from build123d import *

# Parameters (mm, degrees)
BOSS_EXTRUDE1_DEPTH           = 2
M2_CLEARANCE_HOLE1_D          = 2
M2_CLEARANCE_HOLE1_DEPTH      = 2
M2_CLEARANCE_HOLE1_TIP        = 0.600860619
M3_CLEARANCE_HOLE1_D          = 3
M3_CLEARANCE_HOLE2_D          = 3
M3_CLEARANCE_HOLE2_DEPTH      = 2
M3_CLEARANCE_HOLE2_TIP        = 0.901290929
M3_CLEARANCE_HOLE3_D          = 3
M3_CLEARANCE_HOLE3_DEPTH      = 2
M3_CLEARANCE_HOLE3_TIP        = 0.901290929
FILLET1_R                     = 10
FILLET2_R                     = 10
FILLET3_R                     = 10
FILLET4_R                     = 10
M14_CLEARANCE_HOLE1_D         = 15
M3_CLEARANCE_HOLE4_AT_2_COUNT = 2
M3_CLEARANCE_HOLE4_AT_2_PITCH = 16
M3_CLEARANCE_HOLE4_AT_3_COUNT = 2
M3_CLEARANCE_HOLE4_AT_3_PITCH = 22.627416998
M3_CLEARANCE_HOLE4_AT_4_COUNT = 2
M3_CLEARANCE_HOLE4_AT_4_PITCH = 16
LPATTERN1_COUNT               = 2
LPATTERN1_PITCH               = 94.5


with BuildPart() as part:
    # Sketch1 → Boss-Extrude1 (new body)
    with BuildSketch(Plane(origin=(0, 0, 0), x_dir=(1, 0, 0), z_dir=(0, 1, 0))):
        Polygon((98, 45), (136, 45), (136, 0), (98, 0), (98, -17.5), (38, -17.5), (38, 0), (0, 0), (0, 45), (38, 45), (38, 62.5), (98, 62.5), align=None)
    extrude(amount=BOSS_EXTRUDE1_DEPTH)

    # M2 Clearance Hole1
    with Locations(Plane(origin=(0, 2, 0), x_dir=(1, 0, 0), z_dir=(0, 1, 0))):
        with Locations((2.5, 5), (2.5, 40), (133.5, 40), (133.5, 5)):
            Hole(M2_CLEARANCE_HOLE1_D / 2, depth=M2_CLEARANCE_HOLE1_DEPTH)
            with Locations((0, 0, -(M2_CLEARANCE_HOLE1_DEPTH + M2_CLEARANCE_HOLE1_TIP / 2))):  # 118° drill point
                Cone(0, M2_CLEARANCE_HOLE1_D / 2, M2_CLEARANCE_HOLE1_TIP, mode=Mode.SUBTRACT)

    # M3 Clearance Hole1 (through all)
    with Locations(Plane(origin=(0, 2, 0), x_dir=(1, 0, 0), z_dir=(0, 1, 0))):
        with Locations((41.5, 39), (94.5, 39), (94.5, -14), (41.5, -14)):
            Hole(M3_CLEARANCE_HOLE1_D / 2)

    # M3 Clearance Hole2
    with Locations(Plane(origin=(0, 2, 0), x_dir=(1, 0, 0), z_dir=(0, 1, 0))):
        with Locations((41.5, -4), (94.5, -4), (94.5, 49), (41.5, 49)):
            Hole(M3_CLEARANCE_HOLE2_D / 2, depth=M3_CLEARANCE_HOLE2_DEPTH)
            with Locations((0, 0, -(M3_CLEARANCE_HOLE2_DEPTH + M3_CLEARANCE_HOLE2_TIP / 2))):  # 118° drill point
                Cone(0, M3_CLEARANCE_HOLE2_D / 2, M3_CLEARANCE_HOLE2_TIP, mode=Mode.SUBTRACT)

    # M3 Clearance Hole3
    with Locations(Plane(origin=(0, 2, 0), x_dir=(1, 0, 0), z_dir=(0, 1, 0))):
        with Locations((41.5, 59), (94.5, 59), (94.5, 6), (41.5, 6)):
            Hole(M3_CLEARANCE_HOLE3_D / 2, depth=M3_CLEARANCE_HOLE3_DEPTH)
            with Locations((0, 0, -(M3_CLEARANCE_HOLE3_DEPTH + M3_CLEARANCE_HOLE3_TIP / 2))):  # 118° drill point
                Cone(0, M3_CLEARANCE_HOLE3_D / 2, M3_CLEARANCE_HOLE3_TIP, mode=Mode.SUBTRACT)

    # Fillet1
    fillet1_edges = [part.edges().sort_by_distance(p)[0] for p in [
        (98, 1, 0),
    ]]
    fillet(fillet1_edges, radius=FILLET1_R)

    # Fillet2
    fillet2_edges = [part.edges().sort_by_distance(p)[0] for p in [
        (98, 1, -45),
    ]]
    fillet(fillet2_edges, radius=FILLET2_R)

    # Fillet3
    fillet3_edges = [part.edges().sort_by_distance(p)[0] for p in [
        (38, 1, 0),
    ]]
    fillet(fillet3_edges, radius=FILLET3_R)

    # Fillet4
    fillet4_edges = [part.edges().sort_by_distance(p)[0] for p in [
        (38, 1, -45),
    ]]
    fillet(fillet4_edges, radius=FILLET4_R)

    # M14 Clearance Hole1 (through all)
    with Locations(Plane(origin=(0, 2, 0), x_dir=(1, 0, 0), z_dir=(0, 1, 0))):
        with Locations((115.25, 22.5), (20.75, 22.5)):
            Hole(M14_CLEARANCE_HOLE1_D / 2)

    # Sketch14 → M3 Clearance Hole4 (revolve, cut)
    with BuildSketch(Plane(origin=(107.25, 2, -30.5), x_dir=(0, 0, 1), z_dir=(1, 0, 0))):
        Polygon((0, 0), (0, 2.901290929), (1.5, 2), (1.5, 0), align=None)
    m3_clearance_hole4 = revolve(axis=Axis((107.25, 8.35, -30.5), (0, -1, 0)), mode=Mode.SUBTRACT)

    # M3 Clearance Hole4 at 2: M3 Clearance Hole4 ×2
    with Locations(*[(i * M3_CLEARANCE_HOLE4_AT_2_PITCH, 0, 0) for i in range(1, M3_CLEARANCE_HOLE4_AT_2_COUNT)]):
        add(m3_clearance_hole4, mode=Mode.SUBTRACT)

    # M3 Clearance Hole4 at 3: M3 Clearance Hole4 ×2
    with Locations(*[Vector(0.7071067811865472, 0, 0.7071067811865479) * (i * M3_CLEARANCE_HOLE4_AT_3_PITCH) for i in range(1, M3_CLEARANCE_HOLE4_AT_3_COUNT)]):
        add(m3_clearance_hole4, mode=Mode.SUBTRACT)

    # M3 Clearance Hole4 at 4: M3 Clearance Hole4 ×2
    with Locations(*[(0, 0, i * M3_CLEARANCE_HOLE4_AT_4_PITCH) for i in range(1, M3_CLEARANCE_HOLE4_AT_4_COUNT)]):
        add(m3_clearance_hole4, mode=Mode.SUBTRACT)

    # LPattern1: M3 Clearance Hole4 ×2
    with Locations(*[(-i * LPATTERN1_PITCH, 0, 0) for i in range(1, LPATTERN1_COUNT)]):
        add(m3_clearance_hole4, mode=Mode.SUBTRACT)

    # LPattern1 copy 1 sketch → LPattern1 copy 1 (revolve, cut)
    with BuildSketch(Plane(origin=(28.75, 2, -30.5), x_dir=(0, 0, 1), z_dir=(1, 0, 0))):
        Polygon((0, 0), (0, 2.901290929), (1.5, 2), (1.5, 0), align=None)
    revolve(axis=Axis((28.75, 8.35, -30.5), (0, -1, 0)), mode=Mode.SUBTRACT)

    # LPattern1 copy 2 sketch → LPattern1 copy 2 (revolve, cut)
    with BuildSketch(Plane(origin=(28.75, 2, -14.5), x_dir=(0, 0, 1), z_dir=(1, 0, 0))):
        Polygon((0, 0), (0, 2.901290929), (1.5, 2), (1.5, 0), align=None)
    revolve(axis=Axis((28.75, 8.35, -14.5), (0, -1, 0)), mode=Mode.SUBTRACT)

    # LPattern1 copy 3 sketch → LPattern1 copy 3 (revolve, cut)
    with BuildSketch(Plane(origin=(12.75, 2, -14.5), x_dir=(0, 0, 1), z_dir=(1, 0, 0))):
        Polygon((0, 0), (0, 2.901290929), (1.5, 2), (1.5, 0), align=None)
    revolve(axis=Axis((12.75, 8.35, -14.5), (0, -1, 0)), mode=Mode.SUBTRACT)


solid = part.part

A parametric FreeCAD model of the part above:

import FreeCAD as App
import Part
import Sketcher
Q = App.Units.Quantity


def edges_at(feature, points):
    """Names of the edges that pass closest to the given points."""
    edges = feature.Shape.Edges
    near = lambda p: min(range(len(edges)), key=lambda i: edges[i].distToShape(Part.Vertex(*p))[0])
    return sorted({f"Edge{near(p) + 1}" for p in points})

doc = App.newDocument("Part")
body = doc.addObject("PartDesign::Body", "Body")

# Sketch on XZ plane
sketch1 = body.newObject("Sketcher::SketchObject", "Sketch")
sketch1.AttachmentSupport = (doc.getObject("XZ_Plane"), [""])
sketch1.MapMode = "FlatFace"
sketch1.addGeometry([
    Part.LineSegment(App.Vector(136, -45, 0), App.Vector(98, -45, 0)),  # 0
    Part.LineSegment(App.Vector(98, -45, 0), App.Vector(98, -62, 0)),  # 1
    Part.LineSegment(App.Vector(98, -62, 0), App.Vector(38, -62, 0)),  # 2
    Part.LineSegment(App.Vector(38, -62, 0), App.Vector(38, -45, 0)),  # 3
    Part.LineSegment(App.Vector(38, -45, 0), App.Vector(0, -45, 0)),  # 4
    Part.LineSegment(App.Vector(0, -45, 0), App.Vector(0, 0, 0)),  # 5
    Part.LineSegment(App.Vector(0, 0, 0), App.Vector(38, 0, 0)),  # 6
    Part.LineSegment(App.Vector(38, 0, 0), App.Vector(38, 18, 0)),  # 7
    Part.LineSegment(App.Vector(38, 18, 0), App.Vector(98, 18, 0)),  # 8
    Part.LineSegment(App.Vector(98, 18, 0), App.Vector(98, 0, 0)),  # 9
    Part.LineSegment(App.Vector(98, 0, 0), App.Vector(136, 0, 0)),  # 10
    Part.LineSegment(App.Vector(136, 0, 0), App.Vector(136, -45, 0)),  # 11
], False)
sketch1.addConstraint([
    Sketcher.Constraint("Coincident", 0, 2, 1, 1),
    Sketcher.Constraint("Coincident", 1, 2, 2, 1),
    Sketcher.Constraint("Coincident", 2, 2, 3, 1),
    Sketcher.Constraint("Coincident", 3, 2, 4, 1),
    Sketcher.Constraint("Coincident", 4, 2, 5, 1),
    Sketcher.Constraint("Coincident", 5, 2, 6, 1),
    Sketcher.Constraint("Coincident", 6, 2, 7, 1),
    Sketcher.Constraint("Coincident", 7, 2, 8, 1),
    Sketcher.Constraint("Coincident", 8, 2, 9, 1),
    Sketcher.Constraint("Coincident", 9, 2, 10, 1),
    Sketcher.Constraint("Coincident", 10, 2, 11, 1),
    Sketcher.Constraint("Coincident", 11, 2, 0, 1),
    Sketcher.Constraint("Horizontal", 0),
    Sketcher.Constraint("Vertical", 1),
    Sketcher.Constraint("Horizontal", 2),
    Sketcher.Constraint("Vertical", 3),
    Sketcher.Constraint("Horizontal", 4),
    Sketcher.Constraint("Vertical", 5),
    Sketcher.Constraint("Horizontal", 6),
    Sketcher.Constraint("Vertical", 7),
    Sketcher.Constraint("Horizontal", 8),
    Sketcher.Constraint("Vertical", 9),
    Sketcher.Constraint("Horizontal", 10),
    Sketcher.Constraint("Vertical", 11),
    Sketcher.Constraint("Coincident", 5, 2, -1, 1),
    Sketcher.Constraint("PointOnObject", 9, 2, -1),
    Sketcher.Constraint("Horizontal", 0, 2, 3, 2),
    Sketcher.Constraint("Vertical", 3, 2, 6, 2),
    Sketcher.Constraint("Vertical", 1, 2, 8, 2),
    Sketcher.Constraint("Equal", 0, 4),
    Sketcher.Constraint("Equal", 3, 7),
    Sketcher.Constraint("DistanceX", 0, 2, 0, 1, 38.0),
    Sketcher.Constraint("DistanceX", 2, 2, 2, 1, 60.0),
    Sketcher.Constraint("DistanceY", 5, 1, 5, 2, 45.0),
    Sketcher.Constraint("DistanceY", 1, 2, 1, 1, 17.5),
])
pad1 = body.newObject("PartDesign::Pad", "Pad")
pad1.Profile = sketch1
pad1.Length = 2
pad1.Reversed = True

# Sketch on XZ plane
sketch2 = body.newObject("Sketcher::SketchObject", "Sketch001")
sketch2.AttachmentSupport = (doc.getObject("XZ_Plane"), [""])
sketch2.MapMode = "FlatFace"
sketch2.AttachmentOffset = App.Placement(App.Vector(0, 0, -2), App.Rotation())
sketch2.addGeometry([
    Part.Circle(App.Vector(2.5, -5, 0), App.Vector(0, 0, 1), 1),
    Part.Circle(App.Vector(2.5, -40, 0), App.Vector(0, 0, 1), 1),
    Part.Circle(App.Vector(133.5, -40, 0), App.Vector(0, 0, 1), 1),
    Part.Circle(App.Vector(133.5, -5, 0), App.Vector(0, 0, 1), 1),
], False)
sketch2.addConstraint([
    Sketcher.Constraint("Equal", 0, 1),
    Sketcher.Constraint("Equal", 1, 2),
    Sketcher.Constraint("Equal", 2, 3),
    Sketcher.Constraint("Horizontal", 1, 3, 2, 3),
    Sketcher.Constraint("Horizontal", 0, 3, 3, 3),
    Sketcher.Constraint("Vertical", 0, 3, 1, 3),
    Sketcher.Constraint("Vertical", 2, 3, 3, 3),
    Sketcher.Constraint("Diameter", 0, 2.0),
    Sketcher.Constraint("DistanceY", 0, 3, -1, 1, 5.0),
    Sketcher.Constraint("DistanceY", 1, 3, -1, 1, 40.0),
    Sketcher.Constraint("DistanceX", 1, 3, 2, 3, 131.0),
    Sketcher.Constraint("DistanceX", -1, 1, 0, 3, 2.5),
])
doc.recompute()
hole = body.newObject("PartDesign::Hole", "Hole")
hole.Profile = sketch2
hole.ThreadType = "None"
hole.Diameter = 2
hole.DepthType = "Dimension"
hole.Depth = 2
hole.DrillPoint = "Angled"
hole.DrillPointAngle = 118
hole.Reversed = True

# Sketch on XZ plane
sketch3 = body.newObject("Sketcher::SketchObject", "Sketch002")
sketch3.AttachmentSupport = (doc.getObject("XZ_Plane"), [""])
sketch3.MapMode = "FlatFace"
sketch3.AttachmentOffset = App.Placement(App.Vector(0, 0, -2), App.Rotation())
sketch3.addGeometry([
    Part.Circle(App.Vector(41.5, -39, 0), App.Vector(0, 0, 1), 1.5),
    Part.Circle(App.Vector(94.5, -39, 0), App.Vector(0, 0, 1), 1.5),
    Part.Circle(App.Vector(94.5, 14, 0), App.Vector(0, 0, 1), 1.5),
    Part.Circle(App.Vector(41.5, 14, 0), App.Vector(0, 0, 1), 1.5),
], False)
sketch3.addConstraint([
    Sketcher.Constraint("Equal", 0, 1),
    Sketcher.Constraint("Equal", 1, 2),
    Sketcher.Constraint("Equal", 2, 3),
    Sketcher.Constraint("Horizontal", 0, 3, 1, 3),
    Sketcher.Constraint("Horizontal", 2, 3, 3, 3),
    Sketcher.Constraint("Vertical", 1, 3, 2, 3),
    Sketcher.Constraint("Vertical", 0, 3, 3, 3),
    Sketcher.Constraint("Diameter", 0, 3.0),
    Sketcher.Constraint("DistanceY", 0, 3, -1, 1, 39.0),
    Sketcher.Constraint("DistanceY", -1, 1, 2, 3, 14.0),
    Sketcher.Constraint("DistanceX", 0, 3, 1, 3, 53.0),
    Sketcher.Constraint("DistanceX", -1, 1, 0, 3, 41.5),
])
doc.recompute()
hole2 = body.newObject("PartDesign::Hole", "Hole001")
hole2.Profile = sketch3
hole2.ThreadType = "None"
hole2.Diameter = 3
hole2.DepthType = "ThroughAll"
hole2.Reversed = True

# Sketch on XZ plane
sketch4 = body.newObject("Sketcher::SketchObject", "Sketch003")
sketch4.AttachmentSupport = (doc.getObject("XZ_Plane"), [""])
sketch4.MapMode = "FlatFace"
sketch4.AttachmentOffset = App.Placement(App.Vector(0, 0, -2), App.Rotation())
sketch4.addGeometry([
    Part.Circle(App.Vector(41.5, 4, 0), App.Vector(0, 0, 1), 1.5),
    Part.Circle(App.Vector(94.5, 4, 0), App.Vector(0, 0, 1), 1.5),
    Part.Circle(App.Vector(94.5, -49, 0), App.Vector(0, 0, 1), 1.5),
    Part.Circle(App.Vector(41.5, -49, 0), App.Vector(0, 0, 1), 1.5),
], False)
sketch4.addConstraint([
    Sketcher.Constraint("Equal", 0, 1),
    Sketcher.Constraint("Equal", 1, 2),
    Sketcher.Constraint("Equal", 2, 3),
    Sketcher.Constraint("Horizontal", 0, 3, 1, 3),
    Sketcher.Constraint("Horizontal", 2, 3, 3, 3),
    Sketcher.Constraint("Vertical", 1, 3, 2, 3),
    Sketcher.Constraint("Vertical", 0, 3, 3, 3),
    Sketcher.Constraint("Diameter", 0, 3.0),
    Sketcher.Constraint("DistanceY", -1, 1, 0, 3, 4.0),
    Sketcher.Constraint("DistanceY", 2, 3, -1, 1, 49.0),
    Sketcher.Constraint("DistanceX", 0, 3, 1, 3, 53.0),
    Sketcher.Constraint("DistanceX", -1, 1, 0, 3, 41.5),
])
doc.recompute()
hole3 = body.newObject("PartDesign::Hole", "Hole002")
hole3.Profile = sketch4
hole3.ThreadType = "None"
hole3.Diameter = 3
hole3.DepthType = "Dimension"
hole3.Depth = 2
hole3.DrillPoint = "Angled"
hole3.DrillPointAngle = 118
hole3.Reversed = True

# Sketch on XZ plane
sketch5 = body.newObject("Sketcher::SketchObject", "Sketch004")
sketch5.AttachmentSupport = (doc.getObject("XZ_Plane"), [""])
sketch5.MapMode = "FlatFace"
sketch5.AttachmentOffset = App.Placement(App.Vector(0, 0, -2), App.Rotation())
sketch5.addGeometry([
    Part.Circle(App.Vector(41.5, -59, 0), App.Vector(0, 0, 1), 1.5),
    Part.Circle(App.Vector(94.5, -59, 0), App.Vector(0, 0, 1), 1.5),
    Part.Circle(App.Vector(94.5, -6, 0), App.Vector(0, 0, 1), 1.5),
    Part.Circle(App.Vector(41.5, -6, 0), App.Vector(0, 0, 1), 1.5),
], False)
sketch5.addConstraint([
    Sketcher.Constraint("Equal", 0, 1),
    Sketcher.Constraint("Equal", 1, 2),
    Sketcher.Constraint("Equal", 2, 3),
    Sketcher.Constraint("Horizontal", 0, 3, 1, 3),
    Sketcher.Constraint("Horizontal", 2, 3, 3, 3),
    Sketcher.Constraint("Vertical", 1, 3, 2, 3),
    Sketcher.Constraint("Vertical", 0, 3, 3, 3),
    Sketcher.Constraint("Diameter", 0, 3.0),
    Sketcher.Constraint("DistanceY", 0, 3, -1, 1, 59.0),
    Sketcher.Constraint("DistanceY", 2, 3, -1, 1, 6.0),
    Sketcher.Constraint("DistanceX", 0, 3, 1, 3, 53.0),
    Sketcher.Constraint("DistanceX", -1, 1, 0, 3, 41.5),
])
doc.recompute()
hole4 = body.newObject("PartDesign::Hole", "Hole003")
hole4.Profile = sketch5
hole4.ThreadType = "None"
hole4.Diameter = 3
hole4.DepthType = "Dimension"
hole4.Depth = 2
hole4.DrillPoint = "Angled"
hole4.DrillPointAngle = 118
hole4.Reversed = True
doc.recompute()

fillet = body.newObject("PartDesign::Fillet", "Fillet")
fillet.Base = (hole4, edges_at(hole4, [(98, 1, 0)]))
fillet.Radius = 10
doc.recompute()

fillet2 = body.newObject("PartDesign::Fillet", "Fillet001")
fillet2.Base = (fillet, edges_at(fillet, [(98, 1, -45)]))
fillet2.Radius = 10
doc.recompute()

fillet3 = body.newObject("PartDesign::Fillet", "Fillet002")
fillet3.Base = (fillet2, edges_at(fillet2, [(38, 1, 0)]))
fillet3.Radius = 10
doc.recompute()

fillet4 = body.newObject("PartDesign::Fillet", "Fillet003")
fillet4.Base = (fillet3, edges_at(fillet3, [(38, 1, -45)]))
fillet4.Radius = 10

# Sketch on XZ plane
sketch6 = body.newObject("Sketcher::SketchObject", "Sketch005")
sketch6.AttachmentSupport = (doc.getObject("XZ_Plane"), [""])
sketch6.MapMode = "FlatFace"
sketch6.AttachmentOffset = App.Placement(App.Vector(0, 0, -2), App.Rotation())
sketch6.addGeometry([
    Part.Circle(App.Vector(115, -22, 0), App.Vector(0, 0, 1), 8),
    Part.Circle(App.Vector(21, -22, 0), App.Vector(0, 0, 1), 8),
], False)
sketch6.addConstraint([
    Sketcher.Constraint("Equal", 0, 1),
    Sketcher.Constraint("Horizontal", 0, 3, 1, 3),
    Sketcher.Constraint("Diameter", 0, 15.0),
    Sketcher.Constraint("DistanceY", 0, 3, -1, 1, 22.5),
    Sketcher.Constraint("DistanceX", 1, 3, 0, 3, 94.5),
    Sketcher.Constraint("DistanceX", -1, 1, 0, 3, 115.25),
])
doc.recompute()
hole5 = body.newObject("PartDesign::Hole", "Hole004")
hole5.Profile = sketch6
hole5.ThreadType = "None"
hole5.Diameter = 15
hole5.DepthType = "ThroughAll"
hole5.Reversed = True

# Sketch on YZ plane
sketch7 = body.newObject("Sketcher::SketchObject", "Sketch006")
sketch7.AttachmentSupport = (doc.getObject("YZ_Plane"), [""])
sketch7.MapMode = "FlatFace"
sketch7.AttachmentOffset = App.Placement(App.Vector(0, 0, 107.25), App.Rotation())
sketch7.addGeometry([
    Part.LineSegment(App.Vector(-0.9, -30.5, 0), App.Vector(2, -30.5, 0)),
    Part.LineSegment(App.Vector(2, -30.5, 0), App.Vector(2, -29, 0)),
    Part.LineSegment(App.Vector(2, -29, 0), App.Vector(0, -29, 0)),
    Part.LineSegment(App.Vector(0, -29, 0), App.Vector(-0.9, -30.5, 0)),
], False)
sketch7.addGeometry(Part.LineSegment(App.Vector(2, -30.5, 0), App.Vector(-0.9, -30.5, 0)), True)  # axis
sketch7.addConstraint([
    Sketcher.Constraint("Coincident", 0, 2, 1, 1),
    Sketcher.Constraint("Coincident", 1, 2, 2, 1),
    Sketcher.Constraint("Coincident", 2, 2, 3, 1),
    Sketcher.Constraint("Coincident", 3, 2, 0, 1),
    Sketcher.Constraint("Horizontal", 0),
    Sketcher.Constraint("Vertical", 1),
    Sketcher.Constraint("Horizontal", 2),
    Sketcher.Constraint("Horizontal", 4),
    Sketcher.Constraint("Coincident", 4, 1, 0, 2),
    Sketcher.Constraint("PointOnObject", 2, 2, -2),
    Sketcher.Constraint("Equal", 0, 4),
    Sketcher.Constraint("DistanceX", 2, 2, 2, 1, 2.0),
    Sketcher.Constraint("Angle", 3, Q("-121 deg")),
    Sketcher.Constraint("DistanceY", 1, 1, 1, 2, 1.5),
    Sketcher.Constraint("DistanceY", 1, 2, -1, 1, 29.0),
])
groove = body.newObject("PartDesign::Groove", "Groove")
groove.Profile = sketch7
groove.ReferenceAxis = (sketch7, ["Axis0"])
groove.Angle = 360
doc.recompute()

linearpattern = body.newObject("PartDesign::LinearPattern", "LinearPattern")
linearpattern.Originals = [groove]
linearpattern.Direction = (doc.getObject("X_Axis"), [""])
linearpattern.Mode = "offset"
linearpattern.Offset = 16
linearpattern.Occurrences = 2
body.Tip = linearpattern
doc.recompute()

datumline = body.newObject("PartDesign::Line", "DatumLine")
datumline.Placement = App.Placement(App.Vector(0, 0, 0), App.Rotation(App.Vector(0, 0, 1), App.Vector(0.707106781, 0, 0.707106781)))
linearpattern2 = body.newObject("PartDesign::LinearPattern", "LinearPattern001")
linearpattern2.Originals = [groove]
linearpattern2.Direction = (datumline, [""])
linearpattern2.Mode = "offset"
linearpattern2.Offset = 22.627417
linearpattern2.Occurrences = 2
body.Tip = linearpattern2
doc.recompute()

linearpattern3 = body.newObject("PartDesign::LinearPattern", "LinearPattern002")
linearpattern3.Originals = [groove]
linearpattern3.Direction = (doc.getObject("Z_Axis"), [""])
linearpattern3.Mode = "offset"
linearpattern3.Offset = 16
linearpattern3.Occurrences = 2
body.Tip = linearpattern3
doc.recompute()

linearpattern4 = body.newObject("PartDesign::LinearPattern", "LinearPattern003")
linearpattern4.Originals = [groove]
linearpattern4.Direction = (doc.getObject("X_Axis"), [""])
linearpattern4.Mode = "offset"
linearpattern4.Offset = 94.5
linearpattern4.Occurrences = 2
linearpattern4.Reversed = True
body.Tip = linearpattern4

# Sketch on YZ plane
sketch8 = body.newObject("Sketcher::SketchObject", "Sketch007")
sketch8.AttachmentSupport = (doc.getObject("YZ_Plane"), [""])
sketch8.MapMode = "FlatFace"
sketch8.AttachmentOffset = App.Placement(App.Vector(0, 0, 28.75), App.Rotation())
sketch8.addGeometry([
    Part.LineSegment(App.Vector(-0.9, -30.5, 0), App.Vector(2, -30.5, 0)),
    Part.LineSegment(App.Vector(2, -30.5, 0), App.Vector(2, -29, 0)),
    Part.LineSegment(App.Vector(2, -29, 0), App.Vector(0, -29, 0)),
    Part.LineSegment(App.Vector(0, -29, 0), App.Vector(-0.9, -30.5, 0)),
], False)
sketch8.addGeometry(Part.LineSegment(App.Vector(2, -30.5, 0), App.Vector(-0.9, -30.5, 0)), True)  # axis
sketch8.addConstraint([
    Sketcher.Constraint("Coincident", 0, 2, 1, 1),
    Sketcher.Constraint("Coincident", 1, 2, 2, 1),
    Sketcher.Constraint("Coincident", 2, 2, 3, 1),
    Sketcher.Constraint("Coincident", 3, 2, 0, 1),
    Sketcher.Constraint("Horizontal", 0),
    Sketcher.Constraint("Vertical", 1),
    Sketcher.Constraint("Horizontal", 2),
    Sketcher.Constraint("Horizontal", 4),
    Sketcher.Constraint("Coincident", 4, 1, 0, 2),
    Sketcher.Constraint("PointOnObject", 2, 2, -2),
    Sketcher.Constraint("Equal", 0, 4),
    Sketcher.Constraint("DistanceX", 2, 2, 2, 1, 2.0),
    Sketcher.Constraint("Angle", 3, Q("-121 deg")),
    Sketcher.Constraint("DistanceY", 1, 1, 1, 2, 1.5),
    Sketcher.Constraint("DistanceY", 1, 2, -1, 1, 29.0),
])
groove2 = body.newObject("PartDesign::Groove", "Groove001")
groove2.Profile = sketch8
groove2.ReferenceAxis = (sketch8, ["Axis0"])
groove2.Angle = 360

# Sketch on YZ plane
sketch9 = body.newObject("Sketcher::SketchObject", "Sketch008")
sketch9.AttachmentSupport = (doc.getObject("YZ_Plane"), [""])
sketch9.MapMode = "FlatFace"
sketch9.AttachmentOffset = App.Placement(App.Vector(0, 0, 28.75), App.Rotation())
sketch9.addGeometry([
    Part.LineSegment(App.Vector(-0.9, -14.5, 0), App.Vector(2, -14.5, 0)),
    Part.LineSegment(App.Vector(2, -14.5, 0), App.Vector(2, -13, 0)),
    Part.LineSegment(App.Vector(2, -13, 0), App.Vector(0, -13, 0)),
    Part.LineSegment(App.Vector(0, -13, 0), App.Vector(-0.9, -14.5, 0)),
], False)
sketch9.addGeometry(Part.LineSegment(App.Vector(2, -14.5, 0), App.Vector(-0.9, -14.5, 0)), True)  # axis
sketch9.addConstraint([
    Sketcher.Constraint("Coincident", 0, 2, 1, 1),
    Sketcher.Constraint("Coincident", 1, 2, 2, 1),
    Sketcher.Constraint("Coincident", 2, 2, 3, 1),
    Sketcher.Constraint("Coincident", 3, 2, 0, 1),
    Sketcher.Constraint("Horizontal", 0),
    Sketcher.Constraint("Vertical", 1),
    Sketcher.Constraint("Horizontal", 2),
    Sketcher.Constraint("Horizontal", 4),
    Sketcher.Constraint("Coincident", 4, 1, 0, 2),
    Sketcher.Constraint("PointOnObject", 2, 2, -2),
    Sketcher.Constraint("Equal", 0, 4),
    Sketcher.Constraint("DistanceX", 2, 2, 2, 1, 2.0),
    Sketcher.Constraint("Angle", 3, Q("-121 deg")),
    Sketcher.Constraint("DistanceY", 1, 1, 1, 2, 1.5),
    Sketcher.Constraint("DistanceY", 1, 2, -1, 1, 13.0),
])
groove3 = body.newObject("PartDesign::Groove", "Groove002")
groove3.Profile = sketch9
groove3.ReferenceAxis = (sketch9, ["Axis0"])
groove3.Angle = 360

# Sketch on YZ plane
sketch10 = body.newObject("Sketcher::SketchObject", "Sketch009")
sketch10.AttachmentSupport = (doc.getObject("YZ_Plane"), [""])
sketch10.MapMode = "FlatFace"
sketch10.AttachmentOffset = App.Placement(App.Vector(0, 0, 12.75), App.Rotation())
sketch10.addGeometry([
    Part.LineSegment(App.Vector(-0.9, -14.5, 0), App.Vector(2, -14.5, 0)),
    Part.LineSegment(App.Vector(2, -14.5, 0), App.Vector(2, -13, 0)),
    Part.LineSegment(App.Vector(2, -13, 0), App.Vector(0, -13, 0)),
    Part.LineSegment(App.Vector(0, -13, 0), App.Vector(-0.9, -14.5, 0)),
], False)
sketch10.addGeometry(Part.LineSegment(App.Vector(2, -14.5, 0), App.Vector(-0.9, -14.5, 0)), True)  # axis
sketch10.addConstraint([
    Sketcher.Constraint("Coincident", 0, 2, 1, 1),
    Sketcher.Constraint("Coincident", 1, 2, 2, 1),
    Sketcher.Constraint("Coincident", 2, 2, 3, 1),
    Sketcher.Constraint("Coincident", 3, 2, 0, 1),
    Sketcher.Constraint("Horizontal", 0),
    Sketcher.Constraint("Vertical", 1),
    Sketcher.Constraint("Horizontal", 2),
    Sketcher.Constraint("Horizontal", 4),
    Sketcher.Constraint("Coincident", 4, 1, 0, 2),
    Sketcher.Constraint("PointOnObject", 2, 2, -2),
    Sketcher.Constraint("Equal", 0, 4),
    Sketcher.Constraint("DistanceX", 2, 2, 2, 1, 2.0),
    Sketcher.Constraint("Angle", 3, Q("-121 deg")),
    Sketcher.Constraint("DistanceY", 1, 1, 1, 2, 1.5),
    Sketcher.Constraint("DistanceY", 1, 2, -1, 1, 13.0),
])
groove4 = body.newObject("PartDesign::Groove", "Groove003")
groove4.Profile = sketch10
groove4.ReferenceAxis = (sketch10, ["Axis0"])
groove4.Angle = 360

doc.recompute()
